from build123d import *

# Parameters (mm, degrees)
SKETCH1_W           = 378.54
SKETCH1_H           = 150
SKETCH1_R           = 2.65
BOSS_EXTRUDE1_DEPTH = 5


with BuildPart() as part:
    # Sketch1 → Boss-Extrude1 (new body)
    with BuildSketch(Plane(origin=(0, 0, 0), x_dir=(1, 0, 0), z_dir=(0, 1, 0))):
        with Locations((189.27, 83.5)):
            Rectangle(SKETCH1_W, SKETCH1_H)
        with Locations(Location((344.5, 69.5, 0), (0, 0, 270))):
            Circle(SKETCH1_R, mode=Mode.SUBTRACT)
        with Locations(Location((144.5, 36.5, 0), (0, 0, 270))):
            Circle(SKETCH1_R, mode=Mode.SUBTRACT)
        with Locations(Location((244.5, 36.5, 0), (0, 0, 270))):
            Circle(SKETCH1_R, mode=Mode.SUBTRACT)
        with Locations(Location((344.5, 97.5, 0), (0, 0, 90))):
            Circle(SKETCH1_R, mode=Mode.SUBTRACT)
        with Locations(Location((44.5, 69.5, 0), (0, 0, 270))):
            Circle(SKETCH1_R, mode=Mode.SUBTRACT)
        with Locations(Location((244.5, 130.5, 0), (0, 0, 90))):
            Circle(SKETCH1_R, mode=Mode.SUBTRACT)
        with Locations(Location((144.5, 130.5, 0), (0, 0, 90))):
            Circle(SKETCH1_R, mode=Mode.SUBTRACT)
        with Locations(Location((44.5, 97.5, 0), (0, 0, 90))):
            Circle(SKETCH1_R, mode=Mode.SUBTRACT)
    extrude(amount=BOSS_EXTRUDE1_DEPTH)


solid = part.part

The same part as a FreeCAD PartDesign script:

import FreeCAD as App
import Part
import Sketcher


def add_polygon(sketch, points):
    """Adds a closed chain of lines whose ends are joined by coincident constraints."""
    first, n = sketch.GeometryCount, len(points)
    for a, b in zip(points, points[1:] + points[:1]):
        sketch.addGeometry(Part.LineSegment(App.Vector(*a, 0), App.Vector(*b, 0)), False)
    for i in range(n):
        sketch.addConstraint(Sketcher.Constraint("Coincident", first + i, 2, first + (i + 1) % n, 1))

doc = App.newDocument("Part")
body = doc.addObject("PartDesign::Body", "Body")

# Sketch on XZ plane
sketch1 = body.newObject("Sketcher::SketchObject", "Sketch")
sketch1.AttachmentSupport = (doc.getObject("XZ_Plane"), [""])
sketch1.MapMode = "FlatFace"
add_polygon(sketch1, [(0, -158.5), (0, -8.5), (378.5, -8.5), (378.5, -158.5)])  # lines 0-3
sketch1.addGeometry(Part.Circle(App.Vector(144.5, -36.5, 0), App.Vector(0, 0, 1), 2.6), False)  # 4
sketch1.addGeometry(Part.Circle(App.Vector(44.5, -69.5, 0), App.Vector(0, 0, 1), 2.6), False)  # 5
sketch1.addGeometry(Part.Circle(App.Vector(244.5, -36.5, 0), App.Vector(0, 0, 1), 2.6), False)  # 6
sketch1.addGeometry(Part.Circle(App.Vector(344.5, -69.5, 0), App.Vector(0, 0, 1), 2.6), False)  # 7
sketch1.addGeometry(Part.Circle(App.Vector(44.5, -97.5, 0), App.Vector(0, 0, 1), 2.6), False)  # 8
sketch1.addGeometry(Part.Circle(App.Vector(144.5, -130.5, 0), App.Vector(0, 0, 1), 2.6), False)  # 9
sketch1.addGeometry(Part.Circle(App.Vector(344.5, -97.5, 0), App.Vector(0, 0, 1), 2.6), False)  # 10
sketch1.addGeometry(Part.Circle(App.Vector(244.5, -130.5, 0), App.Vector(0, 0, 1), 2.6), False)  # 11
sketch1.addConstraint([
    Sketcher.Constraint("Vertical", 0),
    Sketcher.Constraint("Horizontal", 1),
    Sketcher.Constraint("Vertical", 2),
    Sketcher.Constraint("Horizontal", 3),
    Sketcher.Constraint("Equal", 4, 5),
    Sketcher.Constraint("Equal", 5, 6),
    Sketcher.Constraint("Equal", 6, 7),
    Sketcher.Constraint("Equal", 7, 8),
    Sketcher.Constraint("Equal", 8, 9),
    Sketcher.Constraint("Equal", 9, 10),
    Sketcher.Constraint("Equal", 10, 11),
    Sketcher.Constraint("PointOnObject", 0, 2, -2),
    Sketcher.Constraint("Horizontal", 4, 3, 6, 3),
    Sketcher.Constraint("Horizontal", 5, 3, 7, 3),
    Sketcher.Constraint("Horizontal", 8, 3, 10, 3),
    Sketcher.Constraint("Horizontal", 9, 3, 11, 3),
    Sketcher.Constraint("Vertical", 5, 3, 8, 3),
    Sketcher.Constraint("Vertical", 4, 3, 9, 3),
    Sketcher.Constraint("Vertical", 7, 3, 10, 3),
    Sketcher.Constraint("Vertical", 6, 3, 11, 3),
    Sketcher.Constraint("Diameter", 4, 5.3),
    Sketcher.Constraint("DistanceY", 0, 1, 0, 2, 150.0),
    Sketcher.Constraint("DistanceX", 5, 3, 4, 3, 100.0),
    Sketcher.Constraint("DistanceY", 5, 3, 4, 3, 33.0),
    Sketcher.Constraint("DistanceX", 4, 3, 6, 3, 100.0),
    Sketcher.Constraint("DistanceX", 6, 3, 7, 3, 100.0),
    Sketcher.Constraint("DistanceY", 8, 3, 5, 3, 28.0),
    Sketcher.Constraint("DistanceY", 9, 3, 4, 3, 94.0),
    Sketcher.Constraint("DistanceY", 5, 3, 0, 2, 61.0),
    Sketcher.Constraint("DistanceX", 1, 1, 1, 2, 378.54),
    Sketcher.Constraint("DistanceX", -1, 1, 4, 3, 144.5),
    Sketcher.Constraint("DistanceY", 4, 3, -1, 1, 36.5),
])
pad1 = body.newObject("PartDesign::Pad", "Pad")
pad1.Profile = sketch1
pad1.Length = 5
pad1.Reversed = True

doc.recompute()
